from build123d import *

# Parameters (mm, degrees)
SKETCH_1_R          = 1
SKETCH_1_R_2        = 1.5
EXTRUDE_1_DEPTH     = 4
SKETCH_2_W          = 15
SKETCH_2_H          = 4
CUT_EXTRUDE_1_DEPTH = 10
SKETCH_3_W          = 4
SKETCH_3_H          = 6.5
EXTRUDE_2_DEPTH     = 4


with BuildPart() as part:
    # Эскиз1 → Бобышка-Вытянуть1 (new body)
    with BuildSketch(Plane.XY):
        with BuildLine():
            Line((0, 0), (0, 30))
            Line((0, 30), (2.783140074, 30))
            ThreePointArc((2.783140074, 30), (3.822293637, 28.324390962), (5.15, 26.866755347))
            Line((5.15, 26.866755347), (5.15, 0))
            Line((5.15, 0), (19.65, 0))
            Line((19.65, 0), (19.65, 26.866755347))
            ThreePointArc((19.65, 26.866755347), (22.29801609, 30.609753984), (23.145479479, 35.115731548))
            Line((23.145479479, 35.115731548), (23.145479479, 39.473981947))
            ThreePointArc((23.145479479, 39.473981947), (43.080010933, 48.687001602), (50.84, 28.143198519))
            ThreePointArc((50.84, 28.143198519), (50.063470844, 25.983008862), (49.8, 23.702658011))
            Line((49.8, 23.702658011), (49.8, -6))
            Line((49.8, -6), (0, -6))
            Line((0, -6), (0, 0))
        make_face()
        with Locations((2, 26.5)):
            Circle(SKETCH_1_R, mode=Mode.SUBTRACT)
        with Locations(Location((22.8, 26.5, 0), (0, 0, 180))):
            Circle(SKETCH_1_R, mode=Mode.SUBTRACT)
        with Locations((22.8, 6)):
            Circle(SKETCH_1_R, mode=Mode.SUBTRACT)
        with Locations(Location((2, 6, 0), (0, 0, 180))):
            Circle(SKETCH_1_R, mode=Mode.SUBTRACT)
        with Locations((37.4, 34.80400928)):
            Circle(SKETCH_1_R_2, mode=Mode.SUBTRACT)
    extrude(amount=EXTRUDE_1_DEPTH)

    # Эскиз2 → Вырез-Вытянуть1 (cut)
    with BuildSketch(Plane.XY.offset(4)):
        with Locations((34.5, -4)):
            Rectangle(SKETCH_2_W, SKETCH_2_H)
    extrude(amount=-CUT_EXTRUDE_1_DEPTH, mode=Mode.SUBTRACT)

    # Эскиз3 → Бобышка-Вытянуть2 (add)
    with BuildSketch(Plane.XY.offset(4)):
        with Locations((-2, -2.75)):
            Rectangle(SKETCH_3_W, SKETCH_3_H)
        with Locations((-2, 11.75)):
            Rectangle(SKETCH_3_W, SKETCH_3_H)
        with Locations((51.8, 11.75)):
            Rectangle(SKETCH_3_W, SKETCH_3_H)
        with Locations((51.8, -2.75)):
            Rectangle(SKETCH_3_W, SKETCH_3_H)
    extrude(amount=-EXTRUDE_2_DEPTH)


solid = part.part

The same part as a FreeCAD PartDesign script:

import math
import FreeCAD as App
import Part
import Sketcher

V = App.Vector

doc = App.newDocument("Part")
body = doc.addObject("PartDesign::Body", "Body")

sketch1 = doc.addObject("Sketcher::SketchObject", "Sketch")
body.addObject(sketch1)
sketch1.AttachmentSupport = (doc.XY_Plane, [""])
sketch1.MapMode = "FlatFace"
sketch1.addGeometry([
    Part.LineSegment(V(2.8, 30, 0), V(0, 30, 0)),
    Part.LineSegment(V(0, 30, 0), V(0, -6, 0)),
    Part.LineSegment(V(0, -6, 0), V(49.8, -6, 0)),
    Part.LineSegment(V(49.8, -6, 0), V(49.8, 23.7, 0)),
    Part.ArcOfCircle(Part.Circle(V(59.8, 23.7, 0), V(0, 0, 1), 10), math.radians(154), math.radians(180)),
    Part.ArcOfCircle(Part.Circle(V(37.4, 34.8, 0), V(0, 0, 1), 15), math.radians(-26), math.radians(162)),
    Part.LineSegment(V(23.1, 39.5, 0), V(23.1, 35.1, 0)),
    Part.ArcOfCircle(Part.Circle(V(12.4, 34.8, 0), V(0, 0, 1), 10.7), math.radians(-48), math.radians(2)),
    Part.LineSegment(V(19.6, 26.9, 0), V(19.6, 0, 0)),
    Part.LineSegment(V(19.6, 0, 0), V(5.2, 0, 0)),
    Part.LineSegment(V(5.2, 0, 0), V(5.2, 26.9, 0)),
    Part.ArcOfCircle(Part.Circle(V(12.4, 34.8, 0), V(0, 0, 1), 10.8), math.radians(-153), math.radians(-132)),
    Part.Circle(V(22.8, 6, 0), V(0, 0, 1), 1),
    Part.Circle(V(2, 6, 0), V(0, 0, 1), 1),
    Part.Circle(V(22.8, 26.5, 0), V(0, 0, 1), 1),
    Part.Circle(V(37.4, 34.8, 0), V(0, 0, 1), 1.5),
    Part.Circle(V(2, 26.5, 0), V(0, 0, 1), 1),
], False)
sketch1.addConstraint([
    Sketcher.Constraint("Coincident", 0, 2, 1, 1),
    Sketcher.Constraint("Coincident", 1, 2, 2, 1),
    Sketcher.Constraint("Coincident", 2, 2, 3, 1),
    Sketcher.Constraint("Tangent", 3, 2, 4, 2),
    Sketcher.Constraint("Tangent", 4, 1, 5, 1),
    Sketcher.Constraint("Coincident", 5, 2, 6, 1),
    Sketcher.Constraint("Coincident", 6, 2, 7, 2),
    Sketcher.Constraint("Coincident", 7, 1, 8, 1),
    Sketcher.Constraint("Coincident", 8, 2, 9, 1),
    Sketcher.Constraint("Coincident", 9, 2, 10, 1),
    Sketcher.Constraint("Coincident", 10, 2, 11, 2),
    Sketcher.Constraint("Coincident", 11, 1, 0, 1),
    Sketcher.Constraint("Horizontal", 0),
    Sketcher.Constraint("Vertical", 1),
    Sketcher.Constraint("Horizontal", 2),
    Sketcher.Constraint("Vertical", 3),
    Sketcher.Constraint("Vertical", 6),
    Sketcher.Constraint("Vertical", 8),
    Sketcher.Constraint("Horizontal", 9),
    Sketcher.Constraint("Vertical", 10),
    Sketcher.Constraint("Coincident", 11, 3, 7, 3),
    Sketcher.Constraint("Coincident", 15, 3, 5, 3),
    Sketcher.Constraint("Equal", 7, 11),
    Sketcher.Constraint("Equal", 12, 13),
    Sketcher.Constraint("Equal", 13, 14),
    Sketcher.Constraint("Equal", 14, 16),
    Sketcher.Constraint("PointOnObject", 0, 2, -2),
    Sketcher.Constraint("PointOnObject", 8, 2, -1),
    Sketcher.Constraint("Horizontal", 5, 3, 7, 3),
    Sketcher.Constraint("Horizontal", 12, 3, 13, 3),
    Sketcher.Constraint("Horizontal", 14, 3, 16, 3),
    Sketcher.Constraint("Horizontal", 7, 1, 10, 2),
    Sketcher.Constraint("Vertical", 12, 3, 14, 3),
    Sketcher.Constraint("Vertical", 13, 3, 16, 3),
    Sketcher.Constraint("Diameter", 12, 2.0),
    Sketcher.Constraint("Diameter", 15, 3.0),
    Sketcher.Constraint("Radius", 4, 10.0),
    Sketcher.Constraint("Radius", 5, 15.0),
    Sketcher.Constraint("DistanceY", 1, 2, 1, 1, 36.0),
    Sketcher.Constraint("Radius", 7, 10.75),
    Sketcher.Constraint("DistanceX", 2, 1, 2, 2, 49.8),
    Sketcher.Constraint("DistanceX", 9, 2, 9, 1, 14.5),
    Sketcher.Constraint("DistanceY", -1, 1, 12, 3, 6.0),
    Sketcher.Constraint("DistanceX", -1, 1, 13, 3, 2.0),
    Sketcher.Constraint("DistanceY", -1, 1, 0, 2, 30.0),
    Sketcher.Constraint("DistanceX", 7, 3, 5, 3, 25.0),
    Sketcher.Constraint("DistanceX", 12, 3, 4, 3, 37.0),
    Sketcher.Constraint("DistanceX", -1, 1, 5, 3, 37.4),
    Sketcher.Constraint("DistanceY", -1, 1, 14, 3, 26.5),
    Sketcher.Constraint("DistanceX", 0, 2, 0, 1, 2.78314),
    Sketcher.Constraint("DistanceY", 6, 2, 6, 1, 4.35825),
])
pad1 = doc.addObject("PartDesign::Pad", "Pad")
body.addObject(pad1)
pad1.Profile = sketch1
pad1.Length = 4

sketch2 = doc.addObject("Sketcher::SketchObject", "Sketch001")
body.addObject(sketch2)
sketch2.AttachmentSupport = (doc.XY_Plane, [""])
sketch2.MapMode = "FlatFace"
sketch2.AttachmentOffset = App.Placement(V(0, 0, 4), App.Rotation())
sketch2.addGeometry([
    Part.LineSegment(V(27, -2, 0), V(27, -6, 0)),
    Part.LineSegment(V(27, -6, 0), V(42, -6, 0)),
    Part.LineSegment(V(42, -6, 0), V(42, -2, 0)),
    Part.LineSegment(V(42, -2, 0), V(27, -2, 0)),
], False)
sketch2.addConstraint([
    Sketcher.Constraint("Coincident", 0, 2, 1, 1),
    Sketcher.Constraint("Coincident", 1, 2, 2, 1),
    Sketcher.Constraint("Coincident", 2, 2, 3, 1),
    Sketcher.Constraint("Coincident", 3, 2, 0, 1),
    Sketcher.Constraint("Vertical", 0),
    Sketcher.Constraint("Horizontal", 1),
    Sketcher.Constraint("Vertical", 2),
    Sketcher.Constraint("Horizontal", 3),
    Sketcher.Constraint("DistanceX", 1, 1, 1, 2, 15.0),
    Sketcher.Constraint("DistanceY", 0, 2, 0, 1, 4.0),
    Sketcher.Constraint("DistanceX", -1, 1, 0, 2, 27.0),
    Sketcher.Constraint("DistanceY", 0, 2, -1, 1, 6.0),
])
pocket1 = doc.addObject("PartDesign::Pocket", "Pocket")
body.addObject(pocket1)
pocket1.Profile = sketch2
pocket1.Length = 10

sketch3 = doc.addObject("Sketcher::SketchObject", "Sketch002")
body.addObject(sketch3)
sketch3.AttachmentSupport = (doc.XY_Plane, [""])
sketch3.MapMode = "FlatFace"
sketch3.AttachmentOffset = App.Placement(V(0, 0, 4), App.Rotation())
sketch3.addGeometry([
    Part.LineSegment(V(-4, 0.5, 0), V(-4, -6, 0)),
    Part.LineSegment(V(-4, -6, 0), V(0, -6, 0)),
    Part.LineSegment(V(0, -6, 0), V(0, 0.5, 0)),
    Part.LineSegment(V(0, 0.5, 0), V(-4, 0.5, 0)),
    Part.LineSegment(V(-4, 15, 0), V(-4, 8.5, 0)),
    Part.LineSegment(V(-4, 8.5, 0), V(0, 8.5, 0)),
    Part.LineSegment(V(0, 8.5, 0), V(0, 15, 0)),
    Part.LineSegment(V(0, 15, 0), V(-4, 15, 0)),
    Part.LineSegment(V(49.8, 15, 0), V(49.8, 8.5, 0)),
    Part.LineSegment(V(49.8, 8.5, 0), V(53.8, 8.5, 0)),
    Part.LineSegment(V(53.8, 8.5, 0), V(53.8, 15, 0)),
    Part.LineSegment(V(53.8, 15, 0), V(49.8, 15, 0)),
    Part.LineSegment(V(49.8, 0.5, 0), V(49.8, -6, 0)),
    Part.LineSegment(V(49.8, -6, 0), V(53.8, -6, 0)),
    Part.LineSegment(V(53.8, -6, 0), V(53.8, 0.5, 0)),
    Part.LineSegment(V(53.8, 0.5, 0), V(49.8, 0.5, 0)),
], False)
sketch3.addConstraint([
    Sketcher.Constraint("Coincident", 0, 2, 1, 1),
    Sketcher.Constraint("Coincident", 1, 2, 2, 1),
    Sketcher.Constraint("Coincident", 2, 2, 3, 1),
    Sketcher.Constraint("Coincident", 3, 2, 0, 1),
    Sketcher.Constraint("Coincident", 4, 2, 5, 1),
    Sketcher.Constraint("Coincident", 5, 2, 6, 1),
    Sketcher.Constraint("Coincident", 6, 2, 7, 1),
    Sketcher.Constraint("Coincident", 7, 2, 4, 1),
    Sketcher.Constraint("Coincident", 8, 2, 9, 1),
    Sketcher.Constraint("Coincident", 9, 2, 10, 1),
    Sketcher.Constraint("Coincident", 10, 2, 11, 1),
    Sketcher.Constraint("Coincident", 11, 2, 8, 1),
    Sketcher.Constraint("Coincident", 12, 2, 13, 1),
    Sketcher.Constraint("Coincident", 13, 2, 14, 1),
    Sketcher.Constraint("Coincident", 14, 2, 15, 1),
    Sketcher.Constraint("Coincident", 15, 2, 12, 1),
    Sketcher.Constraint("Vertical", 0),
    Sketcher.Constraint("Horizontal", 1),
    Sketcher.Constraint("Vertical", 2),
    Sketcher.Constraint("Horizontal", 3),
    Sketcher.Constraint("Vertical", 4),
    Sketcher.Constraint("Horizontal", 5),
    Sketcher.Constraint("Vertical", 6),
    Sketcher.Constraint("Horizontal", 7),
    Sketcher.Constraint("Vertical", 8),
    Sketcher.Constraint("Horizontal", 9),
    Sketcher.Constraint("Vertical", 10),
    Sketcher.Constraint("Horizontal", 11),
    Sketcher.Constraint("Vertical", 12),
    Sketcher.Constraint("Horizontal", 13),
    Sketcher.Constraint("Vertical", 14),
    Sketcher.Constraint("Horizontal", 15),
    Sketcher.Constraint("PointOnObject", 1, 2, -2),
    Sketcher.Constraint("PointOnObject", 5, 2, -2),
    Sketcher.Constraint("Horizontal", 5, 2, 8, 2),
    Sketcher.Constraint("Horizontal", 7, 2, 10, 2),
    Sketcher.Constraint("Horizontal", 1, 2, 12, 2),
    Sketcher.Constraint("Horizontal", 3, 2, 14, 2),
    Sketcher.Constraint("Vertical", 3, 2, 4, 2),
    Sketcher.Constraint("Vertical", 11, 2, 12, 2),
    Sketcher.Constraint("Vertical", 10, 2, 13, 2),
    Sketcher.Constraint("Equal", 7, 9),
    Sketcher.Constraint("Equal", 2, 4),
    Sketcher.Constraint("DistanceX", 1, 1, 1, 2, 4.0),
    Sketcher.Constraint("DistanceY", 0, 2, 0, 1, 6.5),
    Sketcher.Constraint("DistanceY", 0, 2, -1, 1, 6.0),
    Sketcher.Constraint("DistanceY", -1, 1, 6, 2, 15.0),
    Sketcher.Constraint("DistanceX", -1, 1, 8, 2, 49.8),
])
pad2 = doc.addObject("PartDesign::Pad", "Pad001")
body.addObject(pad2)
pad2.Profile = sketch3
pad2.Length = 4
pad2.Reversed = True

doc.recompute()
